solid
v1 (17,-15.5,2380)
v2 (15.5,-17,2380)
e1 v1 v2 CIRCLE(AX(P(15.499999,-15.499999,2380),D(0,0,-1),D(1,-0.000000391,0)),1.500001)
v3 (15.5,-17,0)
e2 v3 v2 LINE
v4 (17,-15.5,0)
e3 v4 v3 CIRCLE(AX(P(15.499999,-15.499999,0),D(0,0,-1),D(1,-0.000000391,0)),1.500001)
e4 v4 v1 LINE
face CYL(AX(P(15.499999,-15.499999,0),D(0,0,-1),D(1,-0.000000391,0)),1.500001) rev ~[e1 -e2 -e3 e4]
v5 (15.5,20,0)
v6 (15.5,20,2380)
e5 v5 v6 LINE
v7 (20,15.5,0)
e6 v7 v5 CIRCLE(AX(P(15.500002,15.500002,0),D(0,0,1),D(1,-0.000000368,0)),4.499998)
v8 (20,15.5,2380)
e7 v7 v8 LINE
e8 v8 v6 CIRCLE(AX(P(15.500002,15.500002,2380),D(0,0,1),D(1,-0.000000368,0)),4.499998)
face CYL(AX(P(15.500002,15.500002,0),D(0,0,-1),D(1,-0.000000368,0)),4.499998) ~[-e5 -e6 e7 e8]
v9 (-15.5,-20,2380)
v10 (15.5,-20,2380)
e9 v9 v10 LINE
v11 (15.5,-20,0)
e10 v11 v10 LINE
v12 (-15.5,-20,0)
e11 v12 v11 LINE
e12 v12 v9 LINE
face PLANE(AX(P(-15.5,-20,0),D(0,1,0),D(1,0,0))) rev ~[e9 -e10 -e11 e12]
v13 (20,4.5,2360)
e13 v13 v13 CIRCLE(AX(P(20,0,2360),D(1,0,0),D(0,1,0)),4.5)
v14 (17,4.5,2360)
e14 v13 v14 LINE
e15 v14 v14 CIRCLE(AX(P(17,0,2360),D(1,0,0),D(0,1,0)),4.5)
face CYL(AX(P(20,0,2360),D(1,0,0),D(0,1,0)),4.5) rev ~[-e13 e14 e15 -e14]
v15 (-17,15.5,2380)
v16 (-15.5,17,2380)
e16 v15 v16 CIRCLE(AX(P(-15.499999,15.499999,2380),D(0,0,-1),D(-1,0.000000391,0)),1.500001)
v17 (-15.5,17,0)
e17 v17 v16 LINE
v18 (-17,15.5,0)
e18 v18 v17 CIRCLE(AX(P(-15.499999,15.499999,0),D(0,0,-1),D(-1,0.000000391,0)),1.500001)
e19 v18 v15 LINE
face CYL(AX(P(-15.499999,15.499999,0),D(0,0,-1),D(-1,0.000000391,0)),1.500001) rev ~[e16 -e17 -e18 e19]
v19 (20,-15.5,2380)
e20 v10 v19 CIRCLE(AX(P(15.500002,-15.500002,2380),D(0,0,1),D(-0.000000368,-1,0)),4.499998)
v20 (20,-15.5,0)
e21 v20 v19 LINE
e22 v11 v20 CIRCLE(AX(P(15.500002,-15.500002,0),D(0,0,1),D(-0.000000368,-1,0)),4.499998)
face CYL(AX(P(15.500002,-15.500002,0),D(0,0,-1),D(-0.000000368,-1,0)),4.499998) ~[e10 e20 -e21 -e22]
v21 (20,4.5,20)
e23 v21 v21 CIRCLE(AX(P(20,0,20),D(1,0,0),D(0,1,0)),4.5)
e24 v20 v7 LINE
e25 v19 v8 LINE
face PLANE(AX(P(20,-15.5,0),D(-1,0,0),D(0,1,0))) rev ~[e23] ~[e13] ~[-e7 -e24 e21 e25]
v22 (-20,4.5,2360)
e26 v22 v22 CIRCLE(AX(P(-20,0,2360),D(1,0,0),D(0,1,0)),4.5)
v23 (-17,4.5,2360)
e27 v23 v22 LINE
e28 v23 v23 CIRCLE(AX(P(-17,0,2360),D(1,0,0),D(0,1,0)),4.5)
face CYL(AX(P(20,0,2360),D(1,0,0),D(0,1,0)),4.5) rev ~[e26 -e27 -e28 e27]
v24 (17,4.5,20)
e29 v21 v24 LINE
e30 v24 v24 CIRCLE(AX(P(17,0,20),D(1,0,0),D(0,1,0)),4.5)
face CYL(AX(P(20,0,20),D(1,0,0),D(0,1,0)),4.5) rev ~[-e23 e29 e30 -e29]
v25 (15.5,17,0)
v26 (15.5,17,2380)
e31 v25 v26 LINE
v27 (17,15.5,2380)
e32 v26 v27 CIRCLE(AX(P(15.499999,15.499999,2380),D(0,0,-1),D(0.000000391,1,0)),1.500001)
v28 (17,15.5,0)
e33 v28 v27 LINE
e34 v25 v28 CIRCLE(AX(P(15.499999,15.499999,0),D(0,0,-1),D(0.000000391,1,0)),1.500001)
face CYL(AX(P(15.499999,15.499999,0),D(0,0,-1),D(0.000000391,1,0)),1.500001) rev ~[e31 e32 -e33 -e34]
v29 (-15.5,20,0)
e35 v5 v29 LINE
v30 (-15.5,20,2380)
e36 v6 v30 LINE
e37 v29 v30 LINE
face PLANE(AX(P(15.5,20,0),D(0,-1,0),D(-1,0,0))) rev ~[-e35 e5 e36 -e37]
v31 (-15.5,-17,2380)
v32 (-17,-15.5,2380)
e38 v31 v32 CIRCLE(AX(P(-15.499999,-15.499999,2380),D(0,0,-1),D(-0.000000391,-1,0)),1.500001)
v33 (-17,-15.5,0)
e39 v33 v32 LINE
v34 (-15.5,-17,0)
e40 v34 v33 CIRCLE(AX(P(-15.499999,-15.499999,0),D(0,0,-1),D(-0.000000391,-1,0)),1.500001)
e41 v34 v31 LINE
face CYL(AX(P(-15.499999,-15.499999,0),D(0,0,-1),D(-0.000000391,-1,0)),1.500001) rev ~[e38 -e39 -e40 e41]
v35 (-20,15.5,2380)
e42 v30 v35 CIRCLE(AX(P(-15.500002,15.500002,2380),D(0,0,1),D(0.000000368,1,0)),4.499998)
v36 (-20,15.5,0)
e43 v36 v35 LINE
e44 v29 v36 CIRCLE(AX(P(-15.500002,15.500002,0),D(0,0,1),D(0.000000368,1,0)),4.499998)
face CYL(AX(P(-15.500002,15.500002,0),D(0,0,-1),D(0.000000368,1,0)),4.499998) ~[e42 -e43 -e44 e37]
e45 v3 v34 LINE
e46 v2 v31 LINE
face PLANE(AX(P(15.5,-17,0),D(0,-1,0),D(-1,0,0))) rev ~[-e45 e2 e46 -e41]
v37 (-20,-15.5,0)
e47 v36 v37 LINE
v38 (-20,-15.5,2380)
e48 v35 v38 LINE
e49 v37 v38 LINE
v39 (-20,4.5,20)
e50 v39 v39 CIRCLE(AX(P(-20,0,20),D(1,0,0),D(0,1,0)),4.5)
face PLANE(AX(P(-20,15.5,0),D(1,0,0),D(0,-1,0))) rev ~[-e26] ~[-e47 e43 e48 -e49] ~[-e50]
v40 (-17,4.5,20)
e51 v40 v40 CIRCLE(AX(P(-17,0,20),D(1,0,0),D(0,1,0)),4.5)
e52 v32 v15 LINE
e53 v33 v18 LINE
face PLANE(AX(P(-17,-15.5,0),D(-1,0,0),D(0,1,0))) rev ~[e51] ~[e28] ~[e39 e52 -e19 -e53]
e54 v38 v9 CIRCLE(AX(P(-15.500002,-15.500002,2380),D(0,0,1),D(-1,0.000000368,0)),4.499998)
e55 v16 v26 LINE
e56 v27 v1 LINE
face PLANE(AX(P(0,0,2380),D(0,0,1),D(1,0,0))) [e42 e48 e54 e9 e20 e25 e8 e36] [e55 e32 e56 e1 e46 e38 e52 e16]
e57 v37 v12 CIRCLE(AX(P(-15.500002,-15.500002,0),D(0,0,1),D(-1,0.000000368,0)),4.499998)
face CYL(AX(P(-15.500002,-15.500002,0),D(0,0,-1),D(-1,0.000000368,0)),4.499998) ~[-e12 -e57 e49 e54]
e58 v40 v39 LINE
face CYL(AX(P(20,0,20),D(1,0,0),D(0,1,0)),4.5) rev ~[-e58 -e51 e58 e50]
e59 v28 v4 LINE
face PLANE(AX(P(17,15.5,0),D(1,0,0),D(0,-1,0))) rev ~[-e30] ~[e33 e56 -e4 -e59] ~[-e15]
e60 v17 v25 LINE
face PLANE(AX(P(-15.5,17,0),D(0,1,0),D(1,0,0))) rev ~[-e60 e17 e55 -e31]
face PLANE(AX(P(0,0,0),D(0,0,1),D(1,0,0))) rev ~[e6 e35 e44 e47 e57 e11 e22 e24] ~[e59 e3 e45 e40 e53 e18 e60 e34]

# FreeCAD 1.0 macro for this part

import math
import FreeCAD as App
import Part
import Sketcher

V = App.Vector

doc = App.newDocument("Part")
body = doc.addObject("PartDesign::Body", "Body")

# Sketch on XY plane
sketch1 = body.newObject("Sketcher::SketchObject", "Sketch")
sketch1.AttachmentSupport = (doc.getObject("XY_Plane"), [""])
sketch1.MapMode = "FlatFace"
sketch1.addGeometry(Part.LineSegment(V(-15.5, -20, 0), V(15.5, -20, 0)), False)
sketch1.addGeometry(Part.ArcOfCircle(Part.Circle(V(15.5, -15.5, 0), V(0, 0, 1), 4.5), math.radians(-90), math.radians(0)), False)
sketch1.addGeometry(Part.LineSegment(V(20, -15.5, 0), V(20, 15.5, 0)), False)
sketch1.addGeometry(Part.ArcOfCircle(Part.Circle(V(15.5, 15.5, 0), V(0, 0, 1), 4.5), math.radians(0), math.radians(90)), False)
sketch1.addGeometry(Part.LineSegment(V(15.5, 20, 0), V(-15.5, 20, 0)), False)
sketch1.addGeometry(Part.ArcOfCircle(Part.Circle(V(-15.5, 15.5, 0), V(0, 0, 1), 4.5), math.radians(90), math.radians(180)), False)
sketch1.addGeometry(Part.LineSegment(V(-20, 15.5, 0), V(-20, -15.5, 0)), False)
sketch1.addGeometry(Part.ArcOfCircle(Part.Circle(V(-15.5, -15.5, 0), V(0, 0, 1), 4.5), math.radians(180), math.radians(270)), False)
sketch1.addGeometry(Part.LineSegment(V(-15.5, 17, 0), V(15.5, 17, 0)), False)
sketch1.addGeometry(Part.ArcOfCircle(Part.Circle(V(15.5, 15.5, 0), V(0, 0, 1), 1.5), math.radians(0), math.radians(90)), False)
sketch1.addGeometry(Part.LineSegment(V(17, 15.5, 0), V(17, -15.5, 0)), False)
sketch1.addGeometry(Part.ArcOfCircle(Part.Circle(V(15.5, -15.5, 0), V(0, 0, 1), 1.5), math.radians(-90), math.radians(0)), False)
sketch1.addGeometry(Part.LineSegment(V(15.5, -17, 0), V(-15.5, -17, 0)), False)
sketch1.addGeometry(Part.ArcOfCircle(Part.Circle(V(-15.5, -15.5, 0), V(0, 0, 1), 1.5), math.radians(-180), math.radians(-90)), False)
sketch1.addGeometry(Part.LineSegment(V(-17, -15.5, 0), V(-17, 15.5, 0)), False)
sketch1.addGeometry(Part.ArcOfCircle(Part.Circle(V(-15.5, 15.5, 0), V(0, 0, 1), 1.5), math.radians(90), math.radians(180)), False)
sketch1.addConstraint(Sketcher.Constraint("Tangent", 0, 2, 1, 1))
sketch1.addConstraint(Sketcher.Constraint("Tangent", 1, 2, 2, 1))
sketch1.addConstraint(Sketcher.Constraint("Tangent", 2, 2, 3, 1))
sketch1.addConstraint(Sketcher.Constraint("Tangent", 3, 2, 4, 1))
sketch1.addConstraint(Sketcher.Constraint("Tangent", 4, 2, 5, 1))
sketch1.addConstraint(Sketcher.Constraint("Tangent", 5, 2, 6, 1))
sketch1.addConstraint(Sketcher.Constraint("Tangent", 6, 2, 7, 1))
sketch1.addConstraint(Sketcher.Constraint("Tangent", 7, 2, 0, 1))
sketch1.addConstraint(Sketcher.Constraint("Tangent", 8, 2, 9, 2))
sketch1.addConstraint(Sketcher.Constraint("Tangent", 9, 1, 10, 1))
sketch1.addConstraint(Sketcher.Constraint("Tangent", 10, 2, 11, 2))
sketch1.addConstraint(Sketcher.Constraint("Tangent", 11, 1, 12, 1))
sketch1.addConstraint(Sketcher.Constraint("Tangent", 12, 2, 13, 2))
sketch1.addConstraint(Sketcher.Constraint("Tangent", 13, 1, 14, 1))
sketch1.addConstraint(Sketcher.Constraint("Tangent", 14, 2, 15, 2))
sketch1.addConstraint(Sketcher.Constraint("Tangent", 15, 1, 8, 1))
sketch1.addConstraint(Sketcher.Constraint("Horizontal", 0))
sketch1.addConstraint(Sketcher.Constraint("Vertical", 2))
sketch1.addConstraint(Sketcher.Constraint("Horizontal", 4))
sketch1.addConstraint(Sketcher.Constraint("Vertical", 6))
sketch1.addConstraint(Sketcher.Constraint("Horizontal", 8))
sketch1.addConstraint(Sketcher.Constraint("Vertical", 10))
sketch1.addConstraint(Sketcher.Constraint("Horizontal", 12))
sketch1.addConstraint(Sketcher.Constraint("Vertical", 14))
sketch1.addConstraint(Sketcher.Constraint("Coincident", 9, 3, 3, 3))
sketch1.addConstraint(Sketcher.Constraint("Coincident", 11, 3, 1, 3))
sketch1.addConstraint(Sketcher.Constraint("Coincident", 13, 3, 7, 3))
sketch1.addConstraint(Sketcher.Constraint("Equal", 1, 3))
sketch1.addConstraint(Sketcher.Constraint("Equal", 3, 5))
sketch1.addConstraint(Sketcher.Constraint("Equal", 5, 7))
sketch1.addConstraint(Sketcher.Constraint("Equal", 13, 15))
sketch1.addConstraint(Sketcher.Constraint("Symmetric", 1, 3, 5, 3, -1, 1))
sketch1.addConstraint(Sketcher.Constraint("Equal", 12, 2))
sketch1.addConstraint(Sketcher.Constraint("Radius", 1, 4.499998))
sketch1.addConstraint(Sketcher.Constraint("Radius", 9, 1.500001))
sketch1.addConstraint(Sketcher.Constraint("DistanceX", 0, 1, 0, 2, 31.0))
pad1 = body.newObject("PartDesign::Pad", "Pad")
pad1.Profile = sketch1
pad1.Length = 2380

# Sketch on YZ plane
sketch2 = body.newObject("Sketcher::SketchObject", "Sketch001")
sketch2.AttachmentSupport = (doc.getObject("YZ_Plane"), [""])
sketch2.MapMode = "FlatFace"
sketch2.AttachmentOffset = App.Placement(V(0, 0, 20), App.Rotation())
sketch2.addGeometry(Part.Circle(V(0, 2360, 0), V(0, 0, 1), 4.5), False)
sketch2.addGeometry(Part.Circle(V(0, 20, 0), V(0, 0, 1), 4.5), False)
sketch2.addConstraint(Sketcher.Constraint("Equal", 0, 1))
sketch2.addConstraint(Sketcher.Constraint("PointOnObject", 0, 3, -2))
sketch2.addConstraint(Sketcher.Constraint("PointOnObject", 1, 3, -2))
sketch2.addConstraint(Sketcher.Constraint("Diameter", 0, 9.0))
sketch2.addConstraint(Sketcher.Constraint("DistanceY", -1, 1, 0, 3, 2360.0))
sketch2.addConstraint(Sketcher.Constraint("DistanceY", -1, 1, 1, 3, 20.0))
pocket1 = body.newObject("PartDesign::Pocket", "Pocket")
pocket1.Profile = sketch2
pocket1.Type = "ThroughAll"

doc.recompute()
